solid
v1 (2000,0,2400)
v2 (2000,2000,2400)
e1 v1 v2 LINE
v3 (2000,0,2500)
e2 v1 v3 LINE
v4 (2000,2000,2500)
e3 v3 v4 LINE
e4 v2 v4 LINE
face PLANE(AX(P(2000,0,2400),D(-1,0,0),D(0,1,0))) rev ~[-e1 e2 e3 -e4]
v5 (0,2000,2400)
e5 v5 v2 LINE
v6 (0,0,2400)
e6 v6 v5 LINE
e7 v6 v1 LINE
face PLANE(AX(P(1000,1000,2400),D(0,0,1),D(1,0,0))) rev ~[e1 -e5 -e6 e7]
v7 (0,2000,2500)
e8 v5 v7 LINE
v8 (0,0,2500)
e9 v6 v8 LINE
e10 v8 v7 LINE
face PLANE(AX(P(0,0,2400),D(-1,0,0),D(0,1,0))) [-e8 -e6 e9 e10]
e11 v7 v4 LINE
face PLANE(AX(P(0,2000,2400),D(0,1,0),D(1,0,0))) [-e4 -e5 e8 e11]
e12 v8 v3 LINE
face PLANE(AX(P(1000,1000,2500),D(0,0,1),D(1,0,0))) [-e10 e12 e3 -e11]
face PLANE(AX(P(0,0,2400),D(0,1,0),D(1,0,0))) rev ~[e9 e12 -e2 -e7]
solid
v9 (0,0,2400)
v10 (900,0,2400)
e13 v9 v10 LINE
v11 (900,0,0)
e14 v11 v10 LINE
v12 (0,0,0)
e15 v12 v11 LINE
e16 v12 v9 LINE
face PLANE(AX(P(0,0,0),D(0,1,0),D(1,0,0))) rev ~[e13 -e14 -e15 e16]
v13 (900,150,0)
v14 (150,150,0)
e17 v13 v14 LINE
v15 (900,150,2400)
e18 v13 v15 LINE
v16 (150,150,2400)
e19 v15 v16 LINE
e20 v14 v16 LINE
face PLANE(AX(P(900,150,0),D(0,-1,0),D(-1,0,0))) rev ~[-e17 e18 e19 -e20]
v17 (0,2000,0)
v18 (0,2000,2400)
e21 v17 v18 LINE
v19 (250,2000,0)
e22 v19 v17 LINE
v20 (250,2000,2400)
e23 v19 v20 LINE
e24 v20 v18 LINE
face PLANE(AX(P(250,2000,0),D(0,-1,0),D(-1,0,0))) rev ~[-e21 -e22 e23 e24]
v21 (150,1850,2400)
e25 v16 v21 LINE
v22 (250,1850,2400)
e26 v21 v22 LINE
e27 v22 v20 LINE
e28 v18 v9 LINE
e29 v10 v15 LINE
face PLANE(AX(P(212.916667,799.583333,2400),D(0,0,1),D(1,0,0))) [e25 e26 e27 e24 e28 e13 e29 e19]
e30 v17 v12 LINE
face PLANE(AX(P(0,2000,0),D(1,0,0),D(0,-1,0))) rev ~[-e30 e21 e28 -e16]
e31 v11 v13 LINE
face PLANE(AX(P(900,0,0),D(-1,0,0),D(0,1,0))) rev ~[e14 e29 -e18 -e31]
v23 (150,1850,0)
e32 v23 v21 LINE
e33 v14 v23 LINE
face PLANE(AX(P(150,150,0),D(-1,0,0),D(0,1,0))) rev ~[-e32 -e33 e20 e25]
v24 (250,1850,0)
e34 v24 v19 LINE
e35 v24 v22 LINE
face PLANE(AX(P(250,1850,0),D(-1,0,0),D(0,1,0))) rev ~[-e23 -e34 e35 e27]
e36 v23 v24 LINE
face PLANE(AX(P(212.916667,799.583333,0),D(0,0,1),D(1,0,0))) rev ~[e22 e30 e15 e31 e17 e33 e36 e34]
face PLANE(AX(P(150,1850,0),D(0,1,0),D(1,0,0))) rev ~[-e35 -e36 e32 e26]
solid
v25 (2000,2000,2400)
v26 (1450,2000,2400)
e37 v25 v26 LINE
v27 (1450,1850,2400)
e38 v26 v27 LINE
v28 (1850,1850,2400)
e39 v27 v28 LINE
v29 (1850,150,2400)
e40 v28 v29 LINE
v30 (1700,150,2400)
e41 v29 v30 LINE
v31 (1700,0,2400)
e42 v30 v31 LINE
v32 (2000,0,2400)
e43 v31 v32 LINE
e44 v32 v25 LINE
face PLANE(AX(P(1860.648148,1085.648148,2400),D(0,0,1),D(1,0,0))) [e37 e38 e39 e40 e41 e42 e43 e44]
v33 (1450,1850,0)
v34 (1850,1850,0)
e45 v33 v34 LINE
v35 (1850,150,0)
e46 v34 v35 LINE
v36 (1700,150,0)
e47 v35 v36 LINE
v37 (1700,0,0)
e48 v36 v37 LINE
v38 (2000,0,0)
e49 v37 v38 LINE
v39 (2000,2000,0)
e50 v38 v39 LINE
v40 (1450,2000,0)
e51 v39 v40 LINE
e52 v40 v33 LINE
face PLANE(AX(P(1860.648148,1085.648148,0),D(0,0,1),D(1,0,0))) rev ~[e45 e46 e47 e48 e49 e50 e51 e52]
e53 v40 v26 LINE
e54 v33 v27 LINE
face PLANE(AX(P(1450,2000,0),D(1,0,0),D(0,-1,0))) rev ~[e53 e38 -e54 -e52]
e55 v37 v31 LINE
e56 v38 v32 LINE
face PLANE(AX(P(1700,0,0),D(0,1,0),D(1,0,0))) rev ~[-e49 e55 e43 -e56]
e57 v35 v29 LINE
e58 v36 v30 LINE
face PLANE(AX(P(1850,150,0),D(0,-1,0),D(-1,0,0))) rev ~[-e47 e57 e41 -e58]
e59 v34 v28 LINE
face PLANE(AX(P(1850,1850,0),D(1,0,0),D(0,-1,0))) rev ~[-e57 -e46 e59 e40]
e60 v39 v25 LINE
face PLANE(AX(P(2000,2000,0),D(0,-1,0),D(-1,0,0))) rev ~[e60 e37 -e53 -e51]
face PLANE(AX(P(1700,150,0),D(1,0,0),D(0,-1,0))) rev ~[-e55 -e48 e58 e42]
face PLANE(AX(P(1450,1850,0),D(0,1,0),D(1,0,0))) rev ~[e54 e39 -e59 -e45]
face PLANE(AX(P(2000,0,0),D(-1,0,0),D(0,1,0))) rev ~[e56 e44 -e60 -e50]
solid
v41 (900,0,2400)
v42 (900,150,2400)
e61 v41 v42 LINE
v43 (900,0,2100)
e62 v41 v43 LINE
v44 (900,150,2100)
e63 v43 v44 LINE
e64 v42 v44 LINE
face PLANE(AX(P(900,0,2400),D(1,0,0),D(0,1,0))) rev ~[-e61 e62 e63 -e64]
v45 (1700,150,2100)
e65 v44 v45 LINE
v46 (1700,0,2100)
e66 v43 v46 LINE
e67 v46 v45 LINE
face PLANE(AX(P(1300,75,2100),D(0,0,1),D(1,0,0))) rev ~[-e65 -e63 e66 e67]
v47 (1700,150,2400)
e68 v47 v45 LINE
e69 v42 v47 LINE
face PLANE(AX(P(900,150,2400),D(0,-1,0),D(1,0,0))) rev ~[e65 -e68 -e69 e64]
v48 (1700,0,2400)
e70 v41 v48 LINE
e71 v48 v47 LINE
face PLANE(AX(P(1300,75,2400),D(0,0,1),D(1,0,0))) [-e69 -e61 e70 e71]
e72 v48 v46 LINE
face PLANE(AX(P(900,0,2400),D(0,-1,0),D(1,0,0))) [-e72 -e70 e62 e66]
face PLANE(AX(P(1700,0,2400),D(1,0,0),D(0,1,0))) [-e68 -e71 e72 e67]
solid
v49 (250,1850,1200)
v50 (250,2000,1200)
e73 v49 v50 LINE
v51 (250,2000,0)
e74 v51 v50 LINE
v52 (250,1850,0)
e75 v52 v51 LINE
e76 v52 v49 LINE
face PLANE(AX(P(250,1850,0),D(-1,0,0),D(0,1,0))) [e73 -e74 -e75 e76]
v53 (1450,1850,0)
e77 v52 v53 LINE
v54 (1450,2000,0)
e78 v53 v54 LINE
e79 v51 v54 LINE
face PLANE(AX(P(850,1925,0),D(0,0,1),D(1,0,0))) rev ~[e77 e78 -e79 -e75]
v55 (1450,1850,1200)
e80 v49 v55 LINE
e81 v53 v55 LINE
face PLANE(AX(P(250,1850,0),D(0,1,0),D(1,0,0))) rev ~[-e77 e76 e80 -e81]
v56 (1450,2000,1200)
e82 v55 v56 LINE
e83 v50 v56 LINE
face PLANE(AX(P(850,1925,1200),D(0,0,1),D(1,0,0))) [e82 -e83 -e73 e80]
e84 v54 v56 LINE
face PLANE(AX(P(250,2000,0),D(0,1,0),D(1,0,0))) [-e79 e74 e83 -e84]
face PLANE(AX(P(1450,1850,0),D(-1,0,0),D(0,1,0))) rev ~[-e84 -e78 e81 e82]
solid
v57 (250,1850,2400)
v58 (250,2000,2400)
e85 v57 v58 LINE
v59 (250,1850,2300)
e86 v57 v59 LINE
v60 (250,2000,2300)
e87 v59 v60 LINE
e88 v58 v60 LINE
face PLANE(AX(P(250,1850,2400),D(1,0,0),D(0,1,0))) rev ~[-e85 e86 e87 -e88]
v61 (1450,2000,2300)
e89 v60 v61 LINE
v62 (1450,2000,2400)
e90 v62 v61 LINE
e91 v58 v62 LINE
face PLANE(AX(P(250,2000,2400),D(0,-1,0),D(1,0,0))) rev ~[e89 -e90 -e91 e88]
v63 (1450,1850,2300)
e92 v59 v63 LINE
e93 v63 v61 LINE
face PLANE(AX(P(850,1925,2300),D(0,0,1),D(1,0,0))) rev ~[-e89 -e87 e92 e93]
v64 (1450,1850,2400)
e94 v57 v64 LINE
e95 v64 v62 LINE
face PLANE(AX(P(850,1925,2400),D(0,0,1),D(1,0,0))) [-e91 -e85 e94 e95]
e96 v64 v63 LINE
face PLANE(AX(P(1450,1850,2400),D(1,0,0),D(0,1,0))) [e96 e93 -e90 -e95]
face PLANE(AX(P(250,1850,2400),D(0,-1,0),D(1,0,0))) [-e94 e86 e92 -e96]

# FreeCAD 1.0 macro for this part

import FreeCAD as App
import Part
import Sketcher
from FreeCAD import Vector
Q = App.Units.Quantity

doc = App.newDocument("Part")
body = doc.addObject("PartDesign::Body", "Body")

sketch1 = body.newObject("Sketcher::SketchObject", "Sketch")
sketch1.AttachmentSupport = (doc.getObject("XY_Plane"), [""])
sketch1.MapMode = "FlatFace"
sketch1.addGeometry([
    Part.LineSegment(Vector(250, 2000, 0), Vector(0, 2000, 0)),
    Part.LineSegment(Vector(0, 2000, 0), Vector(0, 0, 0)),
    Part.LineSegment(Vector(0, 0, 0), Vector(900, 0, 0)),
    Part.LineSegment(Vector(900, 0, 0), Vector(900, 150, 0)),
    Part.LineSegment(Vector(900, 150, 0), Vector(150, 150, 0)),
    Part.LineSegment(Vector(150, 150, 0), Vector(150, 1850, 0)),
    Part.LineSegment(Vector(150, 1850, 0), Vector(250, 1850, 0)),
    Part.LineSegment(Vector(250, 1850, 0), Vector(250, 2000, 0)),
], False)
sketch1.addConstraint([
    Sketcher.Constraint("Coincident", 0, 2, 1, 1),
    Sketcher.Constraint("Coincident", 1, 2, 2, 1),
    Sketcher.Constraint("Coincident", 2, 2, 3, 1),
    Sketcher.Constraint("Coincident", 3, 2, 4, 1),
    Sketcher.Constraint("Coincident", 4, 2, 5, 1),
    Sketcher.Constraint("Coincident", 5, 2, 6, 1),
    Sketcher.Constraint("Coincident", 6, 2, 7, 1),
    Sketcher.Constraint("Coincident", 7, 2, 0, 1),
    Sketcher.Constraint("Horizontal", 0),
    Sketcher.Constraint("Vertical", 1),
    Sketcher.Constraint("Horizontal", 2),
    Sketcher.Constraint("Vertical", 3),
    Sketcher.Constraint("Horizontal", 4),
    Sketcher.Constraint("Vertical", 5),
    Sketcher.Constraint("Horizontal", 6),
    Sketcher.Constraint("Vertical", 7),
    Sketcher.Constraint("Coincident", 1, 2, -1, 1),
    Sketcher.Constraint("Equal", 3, 7),
    Sketcher.Constraint("DistanceX", 0, 2, 0, 1, Q("250 mm")),
    Sketcher.Constraint("DistanceX", 2, 1, 2, 2, Q("900 mm")),
    Sketcher.Constraint("DistanceX", 4, 2, 4, 1, Q("750 mm")),
    Sketcher.Constraint("DistanceY", 1, 2, 1, 1, Q("2000 mm")),
    Sketcher.Constraint("DistanceY", 3, 1, 3, 2, Q("150 mm")),
])
pad1 = body.newObject("PartDesign::Pad", "Pad")
pad1.Profile = sketch1
pad1.Length = 2400
body2 = doc.addObject("PartDesign::Body", "Body001")

sketch2 = body2.newObject("Sketcher::SketchObject", "Sketch001")
sketch2.AttachmentSupport = (doc.getObject("XY_Plane001"), [""])
sketch2.MapMode = "FlatFace"
sketch2.addGeometry([
    Part.LineSegment(Vector(1450, 2000, 0), Vector(1450, 1850, 0)),
    Part.LineSegment(Vector(1450, 1850, 0), Vector(1850, 1850, 0)),
    Part.LineSegment(Vector(1850, 1850, 0), Vector(1850, 150, 0)),
    Part.LineSegment(Vector(1850, 150, 0), Vector(1700, 150, 0)),
    Part.LineSegment(Vector(1700, 150, 0), Vector(1700, 0, 0)),
    Part.LineSegment(Vector(1700, 0, 0), Vector(2000, 0, 0)),
    Part.LineSegment(Vector(2000, 0, 0), Vector(2000, 2000, 0)),
    Part.LineSegment(Vector(2000, 2000, 0), Vector(1450, 2000, 0)),
], False)
sketch2.addConstraint([
    Sketcher.Constraint("Coincident", 0, 2, 1, 1),
    Sketcher.Constraint("Coincident", 1, 2, 2, 1),
    Sketcher.Constraint("Coincident", 2, 2, 3, 1),
    Sketcher.Constraint("Coincident", 3, 2, 4, 1),
    Sketcher.Constraint("Coincident", 4, 2, 5, 1),
    Sketcher.Constraint("Coincident", 5, 2, 6, 1),
    Sketcher.Constraint("Coincident", 6, 2, 7, 1),
    Sketcher.Constraint("Coincident", 7, 2, 0, 1),
    Sketcher.Constraint("Vertical", 0),
    Sketcher.Constraint("Horizontal", 1),
    Sketcher.Constraint("Vertical", 2),
    Sketcher.Constraint("Horizontal", 3),
    Sketcher.Constraint("Vertical", 4),
    Sketcher.Constraint("Horizontal", 5),
    Sketcher.Constraint("Vertical", 6),
    Sketcher.Constraint("Horizontal", 7),
    Sketcher.Constraint("PointOnObject", 4, 2, -1),
    Sketcher.Constraint("Equal", 3, 0),
    Sketcher.Constraint("Equal", 0, 4),
    Sketcher.Constraint("DistanceX", 1, 1, 1, 2, Q("400 mm")),
    Sketcher.Constraint("DistanceX", 3, 2, 3, 1, Q("150 mm")),
    Sketcher.Constraint("DistanceX", 5, 1, 5, 2, Q("300 mm")),
    Sketcher.Constraint("DistanceY", 2, 2, 2, 1, Q("1700 mm")),
    Sketcher.Constraint("DistanceX", -1, 1, 0, 2, Q("1450 mm")),
])
pad2 = body2.newObject("PartDesign::Pad", "Pad001")
pad2.Profile = sketch2
pad2.Length = 2400
body3 = doc.addObject("PartDesign::Body", "Body002")

sketch3 = body3.newObject("Sketcher::SketchObject", "Sketch002")
sketch3.AttachmentSupport = (doc.getObject("XY_Plane002"), [""])
sketch3.MapMode = "FlatFace"
sketch3.AttachmentOffset = App.Placement(Vector(0, 0, 2400), App.Rotation())
sketch3.addGeometry([
    Part.LineSegment(Vector(900, 150, 0), Vector(900, 0, 0)),
    Part.LineSegment(Vector(900, 0, 0), Vector(1700, 0, 0)),
    Part.LineSegment(Vector(1700, 0, 0), Vector(1700, 150, 0)),
    Part.LineSegment(Vector(1700, 150, 0), Vector(900, 150, 0)),
], False)
sketch3.addConstraint([
    Sketcher.Constraint("Coincident", 0, 2, 1, 1),
    Sketcher.Constraint("Coincident", 1, 2, 2, 1),
    Sketcher.Constraint("Coincident", 2, 2, 3, 1),
    Sketcher.Constraint("Coincident", 3, 2, 0, 1),
    Sketcher.Constraint("Vertical", 0),
    Sketcher.Constraint("Horizontal", 1),
    Sketcher.Constraint("Vertical", 2),
    Sketcher.Constraint("Horizontal", 3),
    Sketcher.Constraint("PointOnObject", 0, 2, -1),
    Sketcher.Constraint("DistanceX", 1, 1, 1, 2, Q("800 mm")),
    Sketcher.Constraint("DistanceY", 0, 2, 0, 1, Q("150 mm")),
    Sketcher.Constraint("DistanceX", -1, 1, 0, 2, Q("900 mm")),
])
pad3 = body3.newObject("PartDesign::Pad", "Pad002")
pad3.Profile = sketch3
pad3.Length = 300
pad3.Reversed = True
body4 = doc.addObject("PartDesign::Body", "Body003")

sketch4 = body4.newObject("Sketcher::SketchObject", "Sketch003")
sketch4.AttachmentSupport = (doc.getObject("XY_Plane003"), [""])
sketch4.MapMode = "FlatFace"
sketch4.addGeometry([
    Part.LineSegment(Vector(250, 2000, 0), Vector(250, 1850, 0)),
    Part.LineSegment(Vector(250, 1850, 0), Vector(1450, 1850, 0)),
    Part.LineSegment(Vector(1450, 1850, 0), Vector(1450, 2000, 0)),
    Part.LineSegment(Vector(1450, 2000, 0), Vector(250, 2000, 0)),
], False)
sketch4.addConstraint([
    Sketcher.Constraint("Coincident", 0, 2, 1, 1),
    Sketcher.Constraint("Coincident", 1, 2, 2, 1),
    Sketcher.Constraint("Coincident", 2, 2, 3, 1),
    Sketcher.Constraint("Coincident", 3, 2, 0, 1),
    Sketcher.Constraint("Vertical", 0),
    Sketcher.Constraint("Horizontal", 1),
    Sketcher.Constraint("Vertical", 2),
    Sketcher.Constraint("Horizontal", 3),
    Sketcher.Constraint("DistanceX", 1, 1, 1, 2, Q("1200 mm")),
    Sketcher.Constraint("DistanceY", 0, 2, 0, 1, Q("150 mm")),
    Sketcher.Constraint("DistanceX", -1, 1, 0, 2, Q("250 mm")),
    Sketcher.Constraint("DistanceY", -1, 1, 0, 2, Q("1850 mm")),
])
pad4 = body4.newObject("PartDesign::Pad", "Pad003")
pad4.Profile = sketch4
pad4.Length = 1200
body5 = doc.addObject("PartDesign::Body", "Body004")

sketch5 = body5.newObject("Sketcher::SketchObject", "Sketch004")
sketch5.AttachmentSupport = (doc.getObject("XY_Plane004"), [""])
sketch5.MapMode = "FlatFace"
sketch5.AttachmentOffset = App.Placement(Vector(0, 0, 2400), App.Rotation())
sketch5.addGeometry([
    Part.LineSegment(Vector(250, 2000, 0), Vector(250, 1850, 0)),
    Part.LineSegment(Vector(250, 1850, 0), Vector(1450, 1850, 0)),
    Part.LineSegment(Vector(1450, 1850, 0), Vector(1450, 2000, 0)),
    Part.LineSegment(Vector(1450, 2000, 0), Vector(250, 2000, 0)),
], False)
sketch5.addConstraint([
    Sketcher.Constraint("Coincident", 0, 2, 1, 1),
    Sketcher.Constraint("Coincident", 1, 2, 2, 1),
    Sketcher.Constraint("Coincident", 2, 2, 3, 1),
    Sketcher.Constraint("Coincident", 3, 2, 0, 1),
    Sketcher.Constraint("Vertical", 0),
    Sketcher.Constraint("Horizontal", 1),
    Sketcher.Constraint("Vertical", 2),
    Sketcher.Constraint("Horizontal", 3),
    Sketcher.Constraint("DistanceX", 1, 1, 1, 2, Q("1200 mm")),
    Sketcher.Constraint("DistanceY", 0, 2, 0, 1, Q("150 mm")),
    Sketcher.Constraint("DistanceX", -1, 1, 0, 2, Q("250 mm")),
    Sketcher.Constraint("DistanceY", -1, 1, 0, 2, Q("1850 mm")),
])
pad5 = body5.newObject("PartDesign::Pad", "Pad004")
pad5.Profile = sketch5
pad5.Length = 100
pad5.Reversed = True
body6 = doc.addObject("PartDesign::Body", "Body005")

sketch6 = body6.newObject("Sketcher::SketchObject", "Sketch005")
sketch6.AttachmentSupport = (doc.getObject("XY_Plane005"), [""])
sketch6.MapMode = "FlatFace"
sketch6.AttachmentOffset = App.Placement(Vector(0, 0, 2400), App.Rotation())
sketch6.addGeometry([
    Part.LineSegment(Vector(0, 2000, 0), Vector(0, 0, 0)),
    Part.LineSegment(Vector(0, 0, 0), Vector(2000, 0, 0)),
    Part.LineSegment(Vector(2000, 0, 0), Vector(2000, 2000, 0)),
    Part.LineSegment(Vector(2000, 2000, 0), Vector(0, 2000, 0)),
], False)
sketch6.addConstraint([
    Sketcher.Constraint("Coincident", 0, 2, 1, 1),
    Sketcher.Constraint("Coincident", 1, 2, 2, 1),
    Sketcher.Constraint("Coincident", 2, 2, 3, 1),
    Sketcher.Constraint("Coincident", 3, 2, 0, 1),
    Sketcher.Constraint("Vertical", 0),
    Sketcher.Constraint("Horizontal", 1),
    Sketcher.Constraint("Vertical", 2),
    Sketcher.Constraint("Horizontal", 3),
    Sketcher.Constraint("Coincident", 0, 2, -1, 1),
    Sketcher.Constraint("Equal", 3, 0),
    Sketcher.Constraint("DistanceX", 1, 1, 1, 2, Q("2000 mm")),
])
pad6 = body6.newObject("PartDesign::Pad", "Pad005")
pad6.Profile = sketch6
pad6.Length = 100

doc.recompute()
